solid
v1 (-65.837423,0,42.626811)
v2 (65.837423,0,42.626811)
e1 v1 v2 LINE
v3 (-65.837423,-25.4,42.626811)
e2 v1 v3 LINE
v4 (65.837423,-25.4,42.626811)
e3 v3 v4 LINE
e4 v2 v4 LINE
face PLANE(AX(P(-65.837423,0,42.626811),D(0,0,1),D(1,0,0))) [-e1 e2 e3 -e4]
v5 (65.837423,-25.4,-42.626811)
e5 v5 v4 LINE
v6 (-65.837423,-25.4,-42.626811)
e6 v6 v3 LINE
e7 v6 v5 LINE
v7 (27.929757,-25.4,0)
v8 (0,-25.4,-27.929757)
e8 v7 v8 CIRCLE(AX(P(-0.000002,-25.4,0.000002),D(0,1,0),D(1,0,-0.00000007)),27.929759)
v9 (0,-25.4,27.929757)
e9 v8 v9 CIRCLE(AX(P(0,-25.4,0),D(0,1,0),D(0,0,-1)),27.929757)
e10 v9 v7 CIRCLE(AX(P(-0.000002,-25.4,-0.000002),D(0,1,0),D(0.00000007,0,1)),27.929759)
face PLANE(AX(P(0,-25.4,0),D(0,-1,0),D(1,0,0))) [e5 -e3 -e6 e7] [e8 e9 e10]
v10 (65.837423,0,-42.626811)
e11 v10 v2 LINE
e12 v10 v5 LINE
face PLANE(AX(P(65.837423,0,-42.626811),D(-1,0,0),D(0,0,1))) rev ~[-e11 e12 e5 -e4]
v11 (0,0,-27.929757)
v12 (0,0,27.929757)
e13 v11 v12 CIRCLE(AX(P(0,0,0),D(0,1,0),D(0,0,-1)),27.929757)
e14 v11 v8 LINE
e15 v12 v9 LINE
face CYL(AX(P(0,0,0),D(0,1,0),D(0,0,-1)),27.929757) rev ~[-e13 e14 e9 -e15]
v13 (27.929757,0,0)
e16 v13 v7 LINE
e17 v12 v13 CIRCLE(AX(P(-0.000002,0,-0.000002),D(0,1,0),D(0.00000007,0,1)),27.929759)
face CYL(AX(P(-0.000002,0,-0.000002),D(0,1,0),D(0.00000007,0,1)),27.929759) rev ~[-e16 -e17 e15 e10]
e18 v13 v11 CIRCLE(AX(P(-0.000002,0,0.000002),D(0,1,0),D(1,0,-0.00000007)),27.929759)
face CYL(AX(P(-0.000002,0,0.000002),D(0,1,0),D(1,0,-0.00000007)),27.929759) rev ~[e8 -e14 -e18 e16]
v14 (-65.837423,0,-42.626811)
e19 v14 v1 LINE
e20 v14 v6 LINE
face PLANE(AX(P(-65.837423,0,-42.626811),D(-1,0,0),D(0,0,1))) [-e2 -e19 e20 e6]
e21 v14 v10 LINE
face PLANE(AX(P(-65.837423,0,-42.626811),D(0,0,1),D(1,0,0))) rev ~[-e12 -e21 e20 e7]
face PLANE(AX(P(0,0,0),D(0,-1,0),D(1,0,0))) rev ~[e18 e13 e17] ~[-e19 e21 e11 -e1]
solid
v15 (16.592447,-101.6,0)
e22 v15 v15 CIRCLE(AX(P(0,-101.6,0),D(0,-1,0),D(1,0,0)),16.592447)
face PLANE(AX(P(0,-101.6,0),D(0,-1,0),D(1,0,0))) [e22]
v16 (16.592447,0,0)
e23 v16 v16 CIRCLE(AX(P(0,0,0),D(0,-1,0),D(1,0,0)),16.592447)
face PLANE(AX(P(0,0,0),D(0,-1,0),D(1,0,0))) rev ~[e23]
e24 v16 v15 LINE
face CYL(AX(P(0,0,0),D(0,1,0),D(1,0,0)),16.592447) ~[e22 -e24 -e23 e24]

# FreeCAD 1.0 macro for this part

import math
import FreeCAD as App
import Part
import Sketcher
Q = App.Units.Quantity


def add_polygon(sketch, points):
    """Adds a closed chain of lines whose ends are joined by coincident constraints."""
    first, n = sketch.GeometryCount, len(points)
    for a, b in zip(points, points[1:] + points[:1]):
        sketch.addGeometry(Part.LineSegment(App.Vector(*a, 0), App.Vector(*b, 0)), False)
    for i in range(n):
        sketch.addConstraint(Sketcher.Constraint("Coincident", first + i, 2, first + (i + 1) % n, 1))

doc = App.newDocument("Part")
body = doc.addObject("PartDesign::Body", "Body")

sketch1 = doc.addObject("Sketcher::SketchObject", "Sketch")
body.addObject(sketch1)
sketch1.AttachmentSupport = (doc.XZ_Plane, [""])
sketch1.MapMode = "FlatFace"
add_polygon(sketch1, [(-66, 43), (-66, -43), (66, -43), (66, 43)])
sketch1.addGeometry(Part.ArcOfCircle(Part.Circle(App.Vector(0, 0, 0), App.Vector(0, 0, 1), 28), math.radians(0), math.radians(90)), False)
sketch1.addGeometry(Part.ArcOfCircle(Part.Circle(App.Vector(0, 0, 0), App.Vector(0, 0, 1), 28), math.radians(-90), math.radians(0)), False)
sketch1.addGeometry(Part.ArcOfCircle(Part.Circle(App.Vector(0, 0, 0), App.Vector(0, 0, 1), 28), math.radians(90), math.radians(270)), False)
sketch1.addConstraint(Sketcher.Constraint("Tangent", 4, 1, 5, 2))
sketch1.addConstraint(Sketcher.Constraint("Tangent", 5, 1, 6, 2))
sketch1.addConstraint(Sketcher.Constraint("Tangent", 6, 1, 4, 2))
sketch1.addConstraint(Sketcher.Constraint("Vertical", 0))
sketch1.addConstraint(Sketcher.Constraint("Horizontal", 1))
sketch1.addConstraint(Sketcher.Constraint("Vertical", 2))
sketch1.addConstraint(Sketcher.Constraint("Horizontal", 3))
sketch1.addConstraint(Sketcher.Constraint("Coincident", 4, 3, -1, 1))
sketch1.addConstraint(Sketcher.Constraint("Symmetric", 0, 2, 2, 2, -1, 1))
sketch1.addConstraint(Sketcher.Constraint("PointOnObject", 4, 1, -1))
sketch1.addConstraint(Sketcher.Constraint("PointOnObject", 5, 1, -2))
sketch1.addConstraint(Sketcher.Constraint("PointOnObject", 6, 1, -2))
sketch1.addConstraint(Sketcher.Constraint("Radius", 4, Q("27.929759 mm")))
sketch1.addConstraint(Sketcher.Constraint("DistanceY", 0, 2, 0, 1, Q("85.253622 mm")))
sketch1.addConstraint(Sketcher.Constraint("DistanceX", 1, 1, 1, 2, Q("131.674846 mm")))
pad1 = doc.addObject("PartDesign::Pad", "Pad")
body.addObject(pad1)
pad1.Profile = sketch1
pad1.Length = Q("1 in")
body2 = doc.addObject("PartDesign::Body", "Body001")

sketch2 = doc.addObject("Sketcher::SketchObject", "Sketch001")
body2.addObject(sketch2)
sketch2.AttachmentSupport = (doc.getObject("XZ_Plane001"), [""])
sketch2.MapMode = "FlatFace"
sketch2.addGeometry(Part.Circle(App.Vector(0, 0, 0), App.Vector(0, 0, 1), 17), False)
sketch2.addConstraint(Sketcher.Constraint("Coincident", 0, 3, -1, 1))
sketch2.addConstraint(Sketcher.Constraint("Diameter", 0, Q("33.184894 mm")))
pad2 = doc.addObject("PartDesign::Pad", "Pad001")
body2.addObject(pad2)
pad2.Profile = sketch2
pad2.Length = Q("4 in")

doc.recompute()
